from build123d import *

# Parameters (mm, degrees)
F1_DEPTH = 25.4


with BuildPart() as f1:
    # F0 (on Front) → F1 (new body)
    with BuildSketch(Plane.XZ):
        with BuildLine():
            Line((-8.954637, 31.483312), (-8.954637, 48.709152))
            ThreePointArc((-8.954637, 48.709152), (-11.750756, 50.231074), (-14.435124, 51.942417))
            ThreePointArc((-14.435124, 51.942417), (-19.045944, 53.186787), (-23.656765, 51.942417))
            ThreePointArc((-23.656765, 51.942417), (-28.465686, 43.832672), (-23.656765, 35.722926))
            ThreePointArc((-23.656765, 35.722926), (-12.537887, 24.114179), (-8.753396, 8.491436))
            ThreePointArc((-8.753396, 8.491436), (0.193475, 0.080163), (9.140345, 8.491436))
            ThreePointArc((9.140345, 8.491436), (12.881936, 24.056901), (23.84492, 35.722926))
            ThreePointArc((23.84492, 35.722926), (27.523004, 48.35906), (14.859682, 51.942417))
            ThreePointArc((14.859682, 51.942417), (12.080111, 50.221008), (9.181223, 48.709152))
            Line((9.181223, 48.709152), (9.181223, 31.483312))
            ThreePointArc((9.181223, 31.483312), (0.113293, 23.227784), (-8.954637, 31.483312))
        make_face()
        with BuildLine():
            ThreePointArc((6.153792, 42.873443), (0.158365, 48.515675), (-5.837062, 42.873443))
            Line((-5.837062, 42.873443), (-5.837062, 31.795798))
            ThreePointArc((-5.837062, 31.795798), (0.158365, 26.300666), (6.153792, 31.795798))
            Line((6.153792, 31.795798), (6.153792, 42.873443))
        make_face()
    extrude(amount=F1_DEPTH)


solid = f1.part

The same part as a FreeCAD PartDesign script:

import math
import FreeCAD as App
import Part
import Sketcher
Q = App.Units.Quantity

doc = App.newDocument("Part")
body = doc.addObject("PartDesign::Body", "Body")
body.AllowCompound = True

# Sketch on XZ plane
sketch1 = doc.addObject("Sketcher::SketchObject", "Sketch")
body.addObject(sketch1)
sketch1.AttachmentSupport = (doc.XZ_Plane, [""])
sketch1.MapMode = "FlatFace"
sketch1.addGeometry(Part.LineSegment(App.Vector(-8.954637, 31.483312, 0), App.Vector(-8.954637, 48.709152, 0)), False)
sketch1.addGeometry(Part.ArcOfCircle(Part.Circle(App.Vector(11.664049, 89.919912, 0), App.Vector(0, 0, 1), 46.080982), math.radians(-124.497913), math.radians(-116.579848)), False)
sketch1.addGeometry(Part.ArcOfCircle(Part.Circle(App.Vector(-19.045945, 44.022261, 0), App.Vector(0, 0, 1), 9.164526), math.radians(59.793626), math.radians(120.206374)), False)
sketch1.addGeometry(Part.ArcOfCircle(Part.Circle(App.Vector(-19.223104, 43.832671, 0), App.Vector(0, 0, 1), 9.242582), math.radians(118.665771), math.radians(241.334229)), False)
sketch1.addGeometry(Part.ArcOfCircle(Part.Circle(App.Vector(-39.648103, 9.277181, 0), App.Vector(0, 0, 1), 30.904697), math.radians(-1.45689), math.radians(58.839288)), False)
sketch1.addGeometry(Part.ArcOfCircle(Part.Circle(App.Vector(0.193474, 9.044086, 0), App.Vector(0, 0, 1), 8.963923), math.radians(-176.46532), math.radians(-3.53468)), False)
sketch1.addGeometry(Part.ArcOfCircle(Part.Circle(App.Vector(40.359408, 9.219499, 0), App.Vector(0, 0, 1), 31.227551), math.radians(121.927349), math.radians(181.335959)), False)
sketch1.addGeometry(Part.ArcOfCircle(Part.Circle(App.Vector(19.413031, 43.866315, 0), App.Vector(0, 0, 1), 9.271268), math.radians(-61.443575), math.radians(119.414534)), False)
sketch1.addGeometry(Part.ArcOfCircle(Part.Circle(App.Vector(-9.853469, 88.742113, 0), App.Vector(0, 0, 1), 44.327841), math.radians(-64.570057), math.radians(-56.116326)), False)
sketch1.addGeometry(Part.LineSegment(App.Vector(9.181223, 48.709152, 0), App.Vector(9.181223, 31.483312, 0)), False)
sketch1.addGeometry(Part.ArcOfCircle(Part.Circle(App.Vector(0.113293, 32.335687, 0), App.Vector(0, 0, 1), 9.107903), math.radians(-174.630041), math.radians(-5.369959)), False)
sketch1.addGeometry(Part.ArcOfCircle(Part.Circle(App.Vector(0.158365, 42.509193, 0), App.Vector(0, 0, 1), 6.006482), math.radians(3.476708), math.radians(176.523292)), False)
sketch1.addGeometry(Part.LineSegment(App.Vector(-5.837062, 42.873443, 0), App.Vector(-5.837062, 31.795798, 0)), False)
sketch1.addGeometry(Part.ArcOfCircle(Part.Circle(App.Vector(0.158365, 32.318867, 0), App.Vector(0, 0, 1), 6.018201), math.radians(-175.013872), math.radians(-4.986128)), False)
sketch1.addGeometry(Part.LineSegment(App.Vector(6.153792, 31.795798, 0), App.Vector(6.153792, 42.873443, 0)), False)
sketch1.addConstraint(Sketcher.Constraint("Coincident", 0, 2, 1, 2))
sketch1.addConstraint(Sketcher.Constraint("Coincident", 1, 1, 2, 1))
sketch1.addConstraint(Sketcher.Constraint("Coincident", 2, 2, 3, 1))
sketch1.addConstraint(Sketcher.Constraint("Coincident", 3, 2, 4, 2))
sketch1.addConstraint(Sketcher.Constraint("Coincident", 4, 1, 5, 1))
sketch1.addConstraint(Sketcher.Constraint("Coincident", 5, 2, 6, 2))
sketch1.addConstraint(Sketcher.Constraint("Coincident", 6, 1, 7, 1))
sketch1.addConstraint(Sketcher.Constraint("Coincident", 7, 2, 8, 2))
sketch1.addConstraint(Sketcher.Constraint("Coincident", 8, 1, 9, 1))
sketch1.addConstraint(Sketcher.Constraint("Coincident", 9, 2, 10, 2))
sketch1.addConstraint(Sketcher.Constraint("Coincident", 10, 1, 0, 1))
sketch1.addConstraint(Sketcher.Constraint("Coincident", 11, 2, 12, 1))
sketch1.addConstraint(Sketcher.Constraint("Coincident", 12, 2, 13, 1))
sketch1.addConstraint(Sketcher.Constraint("Coincident", 13, 2, 14, 1))
sketch1.addConstraint(Sketcher.Constraint("Coincident", 14, 2, 11, 1))
sketch1.addConstraint(Sketcher.Constraint("Vertical", 0))
sketch1.addConstraint(Sketcher.Constraint("Vertical", 9))
sketch1.addConstraint(Sketcher.Constraint("Vertical", 12))
sketch1.addConstraint(Sketcher.Constraint("Vertical", 14))
sketch1.addConstraint(Sketcher.Constraint("Horizontal", 1, 1, 2, 2))
sketch1.addConstraint(Sketcher.Constraint("Horizontal", 4, 1, 5, 2))
sketch1.addConstraint(Sketcher.Constraint("Horizontal", 3, 2, 6, 1))
sketch1.addConstraint(Sketcher.Constraint("Horizontal", 2, 2, 7, 2))
sketch1.addConstraint(Sketcher.Constraint("Horizontal", 0, 2, 8, 1))
sketch1.addConstraint(Sketcher.Constraint("Horizontal", 9, 2, 10, 1))
sketch1.addConstraint(Sketcher.Constraint("Horizontal", 12, 2, 13, 2))
sketch1.addConstraint(Sketcher.Constraint("Horizontal", 11, 2, 14, 2))
sketch1.addConstraint(Sketcher.Constraint("Vertical", 2, 2, 3, 2))
sketch1.addConstraint(Sketcher.Constraint("Radius", 13, Q("6.018201 mm")))
sketch1.addConstraint(Sketcher.Constraint("Radius", 3, Q("9.242582 mm")))
sketch1.addConstraint(Sketcher.Constraint("Radius", 6, Q("31.227551 mm")))
sketch1.addConstraint(Sketcher.Constraint("Radius", 7, Q("9.271268 mm")))
sketch1.addConstraint(Sketcher.Constraint("Radius", 8, Q("44.327841 mm")))
sketch1.addConstraint(Sketcher.Constraint("Radius", 11, Q("6.006482 mm")))
sketch1.addConstraint(Sketcher.Constraint("Radius", 1, Q("46.080982 mm")))
sketch1.addConstraint(Sketcher.Constraint("Radius", 2, Q("9.164526 mm")))
sketch1.addConstraint(Sketcher.Constraint("Radius", 4, Q("30.904697 mm")))
sketch1.addConstraint(Sketcher.Constraint("Radius", 5, Q("8.963923 mm")))
sketch1.addConstraint(Sketcher.Constraint("Radius", 10, Q("9.107903 mm")))
sketch1.addConstraint(Sketcher.Constraint("DistanceY", 0, 1, 0, 2, Q("17.22584 mm")))
sketch1.addConstraint(Sketcher.Constraint("DistanceY", -1, 1, 6, 3, Q("9.219499 mm")))
sketch1.addConstraint(Sketcher.Constraint("DistanceY", -1, 1, 12, 2, Q("31.795798 mm")))
sketch1.addConstraint(Sketcher.Constraint("DistanceX", 4, 3, 3, 3, Q("20.424999 mm")))
sketch1.addConstraint(Sketcher.Constraint("DistanceY", 8, 3, 1, 3, Q("1.1778 mm")))
sketch1.addConstraint(Sketcher.Constraint("DistanceX", 8, 3, 7, 3, Q("29.266501 mm")))
sketch1.addConstraint(Sketcher.Constraint("DistanceY", 5, 3, 10, 3, Q("23.291601 mm")))
sketch1.addConstraint(Sketcher.Constraint("DistanceX", 10, 1, 13, 3, Q("9.113002 mm")))
sketch1.addConstraint(Sketcher.Constraint("DistanceX", 10, 3, 13, 2, Q("6.040499 mm")))
sketch1.addConstraint(Sketcher.Constraint("DistanceY", 12, 2, 12, 1, Q("11.077645 mm")))
sketch1.addConstraint(Sketcher.Constraint("DistanceX", -1, 1, 1, 3, Q("11.664049 mm")))
sketch1.addConstraint(Sketcher.Constraint("DistanceY", -1, 1, 2, 3, Q("44.022261 mm")))
sketch1.addConstraint(Sketcher.Constraint("DistanceY", -1, 1, 3, 3, Q("43.832671 mm")))
sketch1.addConstraint(Sketcher.Constraint("DistanceY", -1, 1, 4, 3, Q("9.277181 mm")))
sketch1.addConstraint(Sketcher.Constraint("DistanceX", -1, 1, 7, 3, Q("19.413031 mm")))
sketch1.addConstraint(Sketcher.Constraint("DistanceX", -1, 1, 6, 1, Q("23.84492 mm")))
sketch1.addConstraint(Sketcher.Constraint("DistanceX", 11, 2, -1, 1, Q("5.837062 mm")))
pad1 = doc.addObject("PartDesign::Pad", "Pad")
body.addObject(pad1)
pad1.Profile = sketch1
pad1.Length = Q("1 in")

doc.recompute()
